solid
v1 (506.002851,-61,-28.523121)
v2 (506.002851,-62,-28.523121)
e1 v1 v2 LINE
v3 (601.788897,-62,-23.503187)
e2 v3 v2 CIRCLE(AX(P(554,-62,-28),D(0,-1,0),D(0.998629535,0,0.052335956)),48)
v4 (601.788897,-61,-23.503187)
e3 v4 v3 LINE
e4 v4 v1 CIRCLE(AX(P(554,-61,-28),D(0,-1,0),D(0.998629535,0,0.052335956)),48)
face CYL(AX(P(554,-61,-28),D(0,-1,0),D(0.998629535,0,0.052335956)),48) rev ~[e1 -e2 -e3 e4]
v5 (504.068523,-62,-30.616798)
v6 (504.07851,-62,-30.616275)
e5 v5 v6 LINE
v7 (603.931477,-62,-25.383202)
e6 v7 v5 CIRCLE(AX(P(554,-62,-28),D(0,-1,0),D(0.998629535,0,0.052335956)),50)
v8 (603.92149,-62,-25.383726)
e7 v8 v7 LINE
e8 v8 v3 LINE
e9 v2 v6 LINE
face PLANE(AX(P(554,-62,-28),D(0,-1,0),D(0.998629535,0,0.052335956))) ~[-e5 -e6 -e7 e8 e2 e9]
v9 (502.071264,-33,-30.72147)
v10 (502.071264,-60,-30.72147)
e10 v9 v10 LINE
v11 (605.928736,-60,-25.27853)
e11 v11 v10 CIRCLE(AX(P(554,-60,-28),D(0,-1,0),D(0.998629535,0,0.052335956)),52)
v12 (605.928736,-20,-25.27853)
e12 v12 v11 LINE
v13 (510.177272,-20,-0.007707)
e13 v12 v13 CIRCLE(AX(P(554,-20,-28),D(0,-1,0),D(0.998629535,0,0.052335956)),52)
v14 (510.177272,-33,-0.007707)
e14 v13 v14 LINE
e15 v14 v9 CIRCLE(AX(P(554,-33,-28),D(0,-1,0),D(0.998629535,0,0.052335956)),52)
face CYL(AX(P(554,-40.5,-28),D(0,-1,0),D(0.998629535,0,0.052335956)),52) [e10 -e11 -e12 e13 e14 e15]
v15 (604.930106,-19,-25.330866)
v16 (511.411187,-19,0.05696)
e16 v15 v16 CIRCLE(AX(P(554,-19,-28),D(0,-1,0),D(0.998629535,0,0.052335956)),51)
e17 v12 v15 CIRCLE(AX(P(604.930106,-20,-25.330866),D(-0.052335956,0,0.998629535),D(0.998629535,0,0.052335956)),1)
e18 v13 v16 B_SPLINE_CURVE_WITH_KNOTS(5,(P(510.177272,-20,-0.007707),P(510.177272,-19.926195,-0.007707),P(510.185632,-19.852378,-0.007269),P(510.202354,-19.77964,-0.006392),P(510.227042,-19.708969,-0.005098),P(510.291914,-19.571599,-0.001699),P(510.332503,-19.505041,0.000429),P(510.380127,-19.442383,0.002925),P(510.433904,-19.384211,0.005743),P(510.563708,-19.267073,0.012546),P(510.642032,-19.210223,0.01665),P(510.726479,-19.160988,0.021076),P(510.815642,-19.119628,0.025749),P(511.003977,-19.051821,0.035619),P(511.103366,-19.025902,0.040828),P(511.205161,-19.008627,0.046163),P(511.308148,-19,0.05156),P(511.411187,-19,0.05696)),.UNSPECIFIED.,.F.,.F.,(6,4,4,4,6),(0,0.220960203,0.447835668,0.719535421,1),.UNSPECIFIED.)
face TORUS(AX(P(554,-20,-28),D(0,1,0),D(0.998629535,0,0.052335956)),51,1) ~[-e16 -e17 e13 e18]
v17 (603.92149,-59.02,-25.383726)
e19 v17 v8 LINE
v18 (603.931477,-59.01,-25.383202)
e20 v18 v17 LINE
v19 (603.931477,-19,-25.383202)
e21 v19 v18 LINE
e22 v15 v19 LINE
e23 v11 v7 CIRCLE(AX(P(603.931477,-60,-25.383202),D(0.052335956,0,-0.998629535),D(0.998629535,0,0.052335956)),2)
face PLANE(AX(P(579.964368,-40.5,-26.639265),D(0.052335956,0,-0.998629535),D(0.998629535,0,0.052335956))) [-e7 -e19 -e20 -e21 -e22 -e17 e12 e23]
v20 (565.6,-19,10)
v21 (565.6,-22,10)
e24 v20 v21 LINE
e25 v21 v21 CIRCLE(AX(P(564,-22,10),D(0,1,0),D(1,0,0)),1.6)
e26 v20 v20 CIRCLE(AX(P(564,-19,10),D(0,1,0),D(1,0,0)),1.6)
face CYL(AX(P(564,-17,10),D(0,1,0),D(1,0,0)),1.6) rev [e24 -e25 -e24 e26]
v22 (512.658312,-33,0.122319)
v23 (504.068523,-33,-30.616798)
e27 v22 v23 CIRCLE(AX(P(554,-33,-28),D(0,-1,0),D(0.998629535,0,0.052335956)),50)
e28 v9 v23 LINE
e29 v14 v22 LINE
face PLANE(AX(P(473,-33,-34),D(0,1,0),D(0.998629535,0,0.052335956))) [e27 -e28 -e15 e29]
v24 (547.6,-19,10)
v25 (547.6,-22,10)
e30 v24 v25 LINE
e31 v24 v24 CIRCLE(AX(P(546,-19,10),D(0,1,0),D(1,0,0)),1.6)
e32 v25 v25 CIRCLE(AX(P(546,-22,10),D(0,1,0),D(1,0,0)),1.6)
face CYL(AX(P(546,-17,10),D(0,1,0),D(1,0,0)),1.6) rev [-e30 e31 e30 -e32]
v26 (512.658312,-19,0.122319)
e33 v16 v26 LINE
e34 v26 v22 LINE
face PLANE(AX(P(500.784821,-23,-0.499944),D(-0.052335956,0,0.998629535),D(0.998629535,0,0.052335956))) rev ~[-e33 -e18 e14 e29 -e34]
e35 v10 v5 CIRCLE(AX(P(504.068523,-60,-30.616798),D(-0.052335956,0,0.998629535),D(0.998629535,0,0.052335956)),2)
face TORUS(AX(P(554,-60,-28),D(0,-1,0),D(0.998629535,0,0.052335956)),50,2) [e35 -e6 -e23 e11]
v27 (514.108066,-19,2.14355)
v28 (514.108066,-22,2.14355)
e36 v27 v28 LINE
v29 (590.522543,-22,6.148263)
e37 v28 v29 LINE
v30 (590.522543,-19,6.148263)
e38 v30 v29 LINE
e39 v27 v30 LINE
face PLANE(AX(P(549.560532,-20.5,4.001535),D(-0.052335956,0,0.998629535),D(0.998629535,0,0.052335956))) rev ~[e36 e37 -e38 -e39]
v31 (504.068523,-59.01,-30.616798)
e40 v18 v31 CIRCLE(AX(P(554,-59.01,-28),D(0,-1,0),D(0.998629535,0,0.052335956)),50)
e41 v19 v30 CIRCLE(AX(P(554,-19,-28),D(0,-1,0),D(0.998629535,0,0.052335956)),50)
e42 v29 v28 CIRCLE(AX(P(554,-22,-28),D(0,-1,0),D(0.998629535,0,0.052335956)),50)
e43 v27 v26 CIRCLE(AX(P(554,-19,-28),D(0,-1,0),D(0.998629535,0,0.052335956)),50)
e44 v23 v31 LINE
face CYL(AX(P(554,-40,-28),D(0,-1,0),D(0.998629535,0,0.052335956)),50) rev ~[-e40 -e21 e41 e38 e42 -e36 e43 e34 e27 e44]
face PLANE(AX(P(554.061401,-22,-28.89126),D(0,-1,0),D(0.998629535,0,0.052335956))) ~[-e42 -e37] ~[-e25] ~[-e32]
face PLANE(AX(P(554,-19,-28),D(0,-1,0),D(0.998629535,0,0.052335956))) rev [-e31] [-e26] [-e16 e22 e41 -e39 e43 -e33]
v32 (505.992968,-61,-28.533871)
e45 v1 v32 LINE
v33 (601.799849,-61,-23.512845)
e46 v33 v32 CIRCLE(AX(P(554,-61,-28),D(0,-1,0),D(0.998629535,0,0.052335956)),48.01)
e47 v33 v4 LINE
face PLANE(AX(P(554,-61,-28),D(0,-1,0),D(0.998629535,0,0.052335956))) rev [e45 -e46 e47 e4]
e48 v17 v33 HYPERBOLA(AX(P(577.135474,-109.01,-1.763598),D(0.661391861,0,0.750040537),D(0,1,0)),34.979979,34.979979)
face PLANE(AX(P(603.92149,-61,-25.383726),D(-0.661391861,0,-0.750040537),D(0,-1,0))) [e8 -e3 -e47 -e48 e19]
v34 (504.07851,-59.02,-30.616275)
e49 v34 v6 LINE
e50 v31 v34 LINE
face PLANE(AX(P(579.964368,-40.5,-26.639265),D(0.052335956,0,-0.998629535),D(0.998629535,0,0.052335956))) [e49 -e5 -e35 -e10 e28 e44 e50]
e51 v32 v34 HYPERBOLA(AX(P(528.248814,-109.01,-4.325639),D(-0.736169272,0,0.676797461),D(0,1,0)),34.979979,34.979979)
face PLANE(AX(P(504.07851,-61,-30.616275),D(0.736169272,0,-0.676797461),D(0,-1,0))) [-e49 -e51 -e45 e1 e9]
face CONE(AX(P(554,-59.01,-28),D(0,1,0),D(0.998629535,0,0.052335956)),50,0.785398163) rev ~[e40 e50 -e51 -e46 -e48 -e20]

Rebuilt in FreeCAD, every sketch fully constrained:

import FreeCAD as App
import Part
import Sketcher
Q = App.Units.Quantity


def edges_at(feature, points):
    """Names of the edges that pass closest to the given points."""
    edges = feature.Shape.Edges
    near = lambda p: min(range(len(edges)), key=lambda i: edges[i].distToShape(Part.Vertex(*p))[0])
    return sorted({f"Edge{near(p) + 1}" for p in points})


def add_polygon(sketch, points):
    """Adds a closed chain of lines whose ends are joined by coincident constraints."""
    first, n = sketch.GeometryCount, len(points)
    for a, b in zip(points, points[1:] + points[:1]):
        sketch.addGeometry(Part.LineSegment(App.Vector(*a, 0), App.Vector(*b, 0)), False)
    for i in range(n):
        sketch.addConstraint(Sketcher.Constraint("Coincident", first + i, 2, first + (i + 1) % n, 1))

doc = App.newDocument("Part")
body = doc.addObject("PartDesign::Body", "Body")

sketch1 = body.newObject("Sketcher::SketchObject", "Sketch")
sketch1.AttachmentSupport = (doc.getObject("XY_Plane"), [""])
sketch1.MapMode = "FlatFace"
add_polygon(sketch1, [(0, 20), (0, 0), (59, 0), (59, 20)])
sketch1.addConstraint(Sketcher.Constraint("Vertical", 0))
sketch1.addConstraint(Sketcher.Constraint("Horizontal", 1))
sketch1.addConstraint(Sketcher.Constraint("Vertical", 2))
sketch1.addConstraint(Sketcher.Constraint("Horizontal", 3))
sketch1.addConstraint(Sketcher.Constraint("Coincident", 0, 2, -1, 1))
sketch1.addConstraint(Sketcher.Constraint("DistanceX", 1, 1, 1, 2, Q("59 mm")))
sketch1.addConstraint(Sketcher.Constraint("DistanceY", 0, 2, 0, 1, Q("20 mm")))
pad1 = body.newObject("PartDesign::Pad", "Pad")
pad1.Profile = sketch1
pad1.Length = 32
body2 = doc.addObject("PartDesign::Body", "Body001")
doc.recompute()

body.Placement = App.Placement(App.Vector(473, -33, -34), App.Rotation(App.Vector(0, -1, 0), 3))
boolean = body2.newObject("PartDesign::Boolean", "Boolean")
boolean.Type = "Fuse"
boolean.addObjects([body])
body3 = doc.addObject("PartDesign::Body", "Body002")

sketch2 = body3.newObject("Sketcher::SketchObject", "Sketch001")
sketch2.AttachmentSupport = (doc.getObject("XZ_Plane002"), [""])
sketch2.MapMode = "FlatFace"
sketch2.AttachmentOffset = App.Placement(App.Vector(0, 0, 17), App.Rotation())
sketch2.addGeometry(Part.Circle(App.Vector(546, 10, 0), App.Vector(0, 0, 1), 1.6), False)
sketch2.addConstraint(Sketcher.Constraint("Diameter", 0, Q("3.2 mm")))
sketch2.addConstraint(Sketcher.Constraint("DistanceX", -1, 1, 0, 3, Q("546 mm")))
sketch2.addConstraint(Sketcher.Constraint("DistanceY", -1, 1, 0, 3, Q("10 mm")))
pad2 = body3.newObject("PartDesign::Pad", "Pad001")
pad2.Profile = sketch2
pad2.Length = 9
body4 = doc.addObject("PartDesign::Body", "Body003")
body4.AllowCompound = True

sketch3 = body4.newObject("Sketcher::SketchObject", "Sketch002")
sketch3.AttachmentSupport = (doc.getObject("XZ_Plane003"), [""])
sketch3.MapMode = "FlatFace"
sketch3.AttachmentOffset = App.Placement(App.Vector(0, 0, 17), App.Rotation())
sketch3.addGeometry(Part.Circle(App.Vector(564, 10, 0), App.Vector(0, 0, 1), 1.6), False)
sketch3.addConstraint(Sketcher.Constraint("Diameter", 0, Q("3.2 mm")))
sketch3.addConstraint(Sketcher.Constraint("DistanceX", -1, 1, 0, 3, Q("564 mm")))
sketch3.addConstraint(Sketcher.Constraint("DistanceY", -1, 1, 0, 3, Q("10 mm")))
pad3 = body4.newObject("PartDesign::Pad", "Pad002")
pad3.Profile = sketch3
pad3.Length = 9
doc.recompute()

boolean2 = body4.newObject("PartDesign::Boolean", "Boolean001")
boolean2.Type = "Fuse"
boolean2.addObjects([body3])
body5 = doc.addObject("PartDesign::Body", "Body004")

sketch4 = body5.newObject("Sketcher::SketchObject", "Sketch003")
sketch4.AttachmentSupport = (doc.getObject("XY_Plane004"), [""])
sketch4.MapMode = "FlatFace"
add_polygon(sketch4, [(0, 3), (0, 0), (128, 0), (128, 3)])
sketch4.addConstraint(Sketcher.Constraint("Vertical", 0))
sketch4.addConstraint(Sketcher.Constraint("Horizontal", 1))
sketch4.addConstraint(Sketcher.Constraint("Vertical", 2))
sketch4.addConstraint(Sketcher.Constraint("Horizontal", 3))
sketch4.addConstraint(Sketcher.Constraint("Coincident", 0, 2, -1, 1))
sketch4.addConstraint(Sketcher.Constraint("DistanceX", 1, 1, 1, 2, Q("128 mm")))
sketch4.addConstraint(Sketcher.Constraint("DistanceY", 0, 2, 0, 1, Q("3 mm")))
pad4 = body5.newObject("PartDesign::Pad", "Pad003")
pad4.Profile = sketch4
pad4.Length = 35
body6 = doc.addObject("PartDesign::Body", "Body005")
doc.recompute()

body5.Placement = App.Placement(App.Vector(382, -9, -40.8), App.Rotation(App.Vector(0, -1, 0), 3))
boolean3 = body6.newObject("PartDesign::Boolean", "Boolean002")
boolean3.Type = "Fuse"
boolean3.addObjects([body5])
body7 = doc.addObject("PartDesign::Body", "Body006")

sketch5 = body7.newObject("Sketcher::SketchObject", "Sketch004")
sketch5.AttachmentSupport = (doc.getObject("XZ_Plane006"), [""])
sketch5.MapMode = "FlatFace"
add_polygon(sketch5, [(0, 3), (0, 0), (52, 0), (52, 3)])
sketch5.addConstraint(Sketcher.Constraint("Vertical", 0))
sketch5.addConstraint(Sketcher.Constraint("Horizontal", 1))
sketch5.addConstraint(Sketcher.Constraint("Vertical", 2))
sketch5.addConstraint(Sketcher.Constraint("Horizontal", 3))
sketch5.addConstraint(Sketcher.Constraint("Coincident", 0, 2, -1, 1))
sketch5.addConstraint(Sketcher.Constraint("DistanceX", 1, 1, 1, 2, Q("52 mm")))
sketch5.addConstraint(Sketcher.Constraint("DistanceY", 0, 2, 0, 1, Q("3 mm")))
revolution = body7.newObject("PartDesign::Revolution", "Revolution")
revolution.Profile = sketch5
revolution.ReferenceAxis = (sketch5, ["V_Axis"])
revolution.Angle = 180
body8 = doc.addObject("PartDesign::Body", "Body007")
doc.recompute()

body7.Placement = App.Placement(App.Vector(0, 0, 0), App.Rotation(App.Vector(1, 0, 0), 90))
boolean4 = body8.newObject("PartDesign::Boolean", "Boolean003")
boolean4.Type = "Fuse"
boolean4.addObjects([body7])
body9 = doc.addObject("PartDesign::Body", "Body008")
doc.recompute()

body8.Placement = App.Placement(App.Vector(0, 0, 0), App.Rotation(App.Vector(0, 1, 0), 357))
boolean5 = body9.newObject("PartDesign::Boolean", "Boolean004")
boolean5.Type = "Fuse"
boolean5.addObjects([body8])
body10 = doc.addObject("PartDesign::Body", "Body009")
doc.recompute()

body9.Placement = App.Placement(App.Vector(448.581401, -6, -35.39126), App.Rotation(App.Vector(0, 0, 1), 0))
boolean6 = body10.newObject("PartDesign::Boolean", "Boolean005")
boolean6.Type = "Fuse"
boolean6.addObjects([body9])
doc.recompute()

boolean7 = body10.newObject("PartDesign::Boolean", "Boolean006")
boolean7.Type = "Cut"
boolean7.addObjects([body6])
body11 = doc.addObject("PartDesign::Body", "Body010")
doc.recompute()

body10.Placement = App.Placement(App.Vector(105.48, -13, 6.5), App.Rotation(App.Vector(0, 0, 1), 0))
boolean8 = body11.newObject("PartDesign::Boolean", "Boolean007")
boolean8.Type = "Fuse"
boolean8.addObjects([body10])
body12 = doc.addObject("PartDesign::Body", "Body011")

sketch6 = body12.newObject("Sketcher::SketchObject", "Sketch005")
sketch6.AttachmentSupport = (doc.getObject("XY_Plane011"), [""])
sketch6.MapMode = "FlatFace"
sketch6.AttachmentOffset = App.Placement(App.Vector(0, 0, -28), App.Rotation())
add_polygon(sketch6, [(554, -62), (554, -60), (602, -60), (602, -62)])
sketch6.addGeometry(Part.LineSegment(App.Vector(554, -60, 0), App.Vector(554, -62, 0)), True)
sketch6.addConstraint(Sketcher.Constraint("Vertical", 0))
sketch6.addConstraint(Sketcher.Constraint("Horizontal", 1))
sketch6.addConstraint(Sketcher.Constraint("Vertical", 2))
sketch6.addConstraint(Sketcher.Constraint("Horizontal", 3))
sketch6.addConstraint(Sketcher.Constraint("Vertical", 4))
sketch6.addConstraint(Sketcher.Constraint("Coincident", 4, 1, 0, 2))
sketch6.addConstraint(Sketcher.Constraint("Horizontal", 2, 2, 4, 2))
sketch6.addConstraint(Sketcher.Constraint("DistanceX", 1, 1, 1, 2, Q("48 mm")))
sketch6.addConstraint(Sketcher.Constraint("DistanceY", 0, 1, 0, 2, Q("2 mm")))
sketch6.addConstraint(Sketcher.Constraint("DistanceX", -1, 1, 0, 2, Q("554 mm")))
sketch6.addConstraint(Sketcher.Constraint("DistanceY", 0, 2, -1, 1, Q("60 mm")))
revolution2 = body12.newObject("PartDesign::Revolution", "Revolution001")
revolution2.Profile = sketch6
revolution2.ReferenceAxis = (sketch6, ["Axis0"])
revolution2.Angle = 180
body13 = doc.addObject("PartDesign::Body", "Body012")

sketch7 = body13.newObject("Sketcher::SketchObject", "Sketch006")
sketch7.AttachmentSupport = (doc.getObject("XY_Plane012"), [""])
sketch7.MapMode = "FlatFace"
sketch7.AttachmentOffset = App.Placement(App.Vector(0, 0, -28), App.Rotation())
add_polygon(sketch7, [(554, -61), (554, -19), (604, -19), (604, -61)])
sketch7.addGeometry(Part.LineSegment(App.Vector(554, -19, 0), App.Vector(554, -61, 0)), True)
sketch7.addConstraint(Sketcher.Constraint("Vertical", 0))
sketch7.addConstraint(Sketcher.Constraint("Horizontal", 1))
sketch7.addConstraint(Sketcher.Constraint("Vertical", 2))
sketch7.addConstraint(Sketcher.Constraint("Horizontal", 3))
sketch7.addConstraint(Sketcher.Constraint("Vertical", 4))
sketch7.addConstraint(Sketcher.Constraint("Coincident", 4, 1, 0, 2))
sketch7.addConstraint(Sketcher.Constraint("Horizontal", 2, 2, 4, 2))
sketch7.addConstraint(Sketcher.Constraint("DistanceX", 1, 1, 1, 2, Q("50 mm")))
sketch7.addConstraint(Sketcher.Constraint("DistanceY", 0, 1, 0, 2, Q("42 mm")))
sketch7.addConstraint(Sketcher.Constraint("DistanceX", -1, 1, 0, 2, Q("554 mm")))
sketch7.addConstraint(Sketcher.Constraint("DistanceY", 0, 2, -1, 1, Q("19 mm")))
revolution3 = body13.newObject("PartDesign::Revolution", "Revolution002")
revolution3.Profile = sketch7
revolution3.ReferenceAxis = (sketch7, ["Axis0"])
revolution3.Angle = 180
doc.recompute()

boolean9 = body13.newObject("PartDesign::Boolean", "Boolean008")
boolean9.Type = "Fuse"
boolean9.addObjects([body12])
body14 = doc.addObject("PartDesign::Body", "Body013")

sketch8 = body14.newObject("Sketcher::SketchObject", "Sketch007")
sketch8.AttachmentSupport = (doc.getObject("XY_Plane013"), [""])
sketch8.MapMode = "FlatFace"
sketch8.AttachmentOffset = App.Placement(App.Vector(0, 0, -28), App.Rotation())
add_polygon(sketch8, [(554, -62), (554, -19), (606, -19), (606, -62)])
sketch8.addGeometry(Part.LineSegment(App.Vector(554, -19, 0), App.Vector(554, -62, 0)), True)
sketch8.addConstraint(Sketcher.Constraint("Vertical", 0))
sketch8.addConstraint(Sketcher.Constraint("Horizontal", 1))
sketch8.addConstraint(Sketcher.Constraint("Vertical", 2))
sketch8.addConstraint(Sketcher.Constraint("Horizontal", 3))
sketch8.addConstraint(Sketcher.Constraint("Vertical", 4))
sketch8.addConstraint(Sketcher.Constraint("Coincident", 4, 1, 0, 2))
sketch8.addConstraint(Sketcher.Constraint("Horizontal", 2, 2, 4, 2))
sketch8.addConstraint(Sketcher.Constraint("DistanceX", 1, 1, 1, 2, Q("52 mm")))
sketch8.addConstraint(Sketcher.Constraint("DistanceY", 0, 1, 0, 2, Q("43 mm")))
sketch8.addConstraint(Sketcher.Constraint("DistanceX", -1, 1, 0, 2, Q("554 mm")))
sketch8.addConstraint(Sketcher.Constraint("DistanceY", 0, 2, -1, 1, Q("19 mm")))
revolution4 = body14.newObject("PartDesign::Revolution", "Revolution003")
revolution4.Profile = sketch8
revolution4.ReferenceAxis = (sketch8, ["Axis0"])
revolution4.Angle = 180
doc.recompute()

boolean10 = body14.newObject("PartDesign::Boolean", "Boolean009")
boolean10.Type = "Cut"
boolean10.addObjects([body13])
body15 = doc.addObject("PartDesign::Body", "Body014")
doc.recompute()

body14.Placement = App.Placement(App.Vector(-0.706169, 0, -29.032493), App.Rotation(App.Vector(0, -1, 0), 3))
boolean11 = body15.newObject("PartDesign::Boolean", "Boolean010")
boolean11.Type = "Fuse"
boolean11.addObjects([body14])
doc.recompute()

boolean12 = body15.newObject("PartDesign::Boolean", "Boolean011")
boolean12.Type = "Fuse"
boolean12.addObjects([body11])
doc.recompute()

boolean13 = body15.newObject("PartDesign::Boolean", "Boolean012")
boolean13.Type = "Cut"
boolean13.addObjects([body4])
doc.recompute()

boolean14 = body15.newObject("PartDesign::Boolean", "Boolean013")
boolean14.Type = "Cut"
boolean14.addObjects([body2])
doc.recompute()

fillet = body15.newObject("PartDesign::Fillet", "Fillet")
fillet.Base = (boolean14, edges_at(boolean14, [(551.279, -62, 23.929)]))
fillet.Radius = 2
doc.recompute()

fillet2 = body15.newObject("PartDesign::Fillet", "Fillet001")
fillet2.Base = (fillet, edges_at(fillet, [(567.27, -19, 22.278)]))
fillet2.Radius = 1
doc.recompute()

chamfer = body15.newObject("PartDesign::Chamfer", "Chamfer")
chamfer.Base = (fillet2, edges_at(fillet2, [(551.383, -61, 21.931)]))
chamfer.Size = 1.99
doc.recompute()

chamfer2 = body15.newObject("PartDesign::Chamfer", "Chamfer001")
chamfer2.Base = (chamfer, edges_at(chamfer, [(601.934, -61.5, -25.488), (506.066, -61.5, -30.512)]))
chamfer2.Size = 1.99

doc.recompute()
